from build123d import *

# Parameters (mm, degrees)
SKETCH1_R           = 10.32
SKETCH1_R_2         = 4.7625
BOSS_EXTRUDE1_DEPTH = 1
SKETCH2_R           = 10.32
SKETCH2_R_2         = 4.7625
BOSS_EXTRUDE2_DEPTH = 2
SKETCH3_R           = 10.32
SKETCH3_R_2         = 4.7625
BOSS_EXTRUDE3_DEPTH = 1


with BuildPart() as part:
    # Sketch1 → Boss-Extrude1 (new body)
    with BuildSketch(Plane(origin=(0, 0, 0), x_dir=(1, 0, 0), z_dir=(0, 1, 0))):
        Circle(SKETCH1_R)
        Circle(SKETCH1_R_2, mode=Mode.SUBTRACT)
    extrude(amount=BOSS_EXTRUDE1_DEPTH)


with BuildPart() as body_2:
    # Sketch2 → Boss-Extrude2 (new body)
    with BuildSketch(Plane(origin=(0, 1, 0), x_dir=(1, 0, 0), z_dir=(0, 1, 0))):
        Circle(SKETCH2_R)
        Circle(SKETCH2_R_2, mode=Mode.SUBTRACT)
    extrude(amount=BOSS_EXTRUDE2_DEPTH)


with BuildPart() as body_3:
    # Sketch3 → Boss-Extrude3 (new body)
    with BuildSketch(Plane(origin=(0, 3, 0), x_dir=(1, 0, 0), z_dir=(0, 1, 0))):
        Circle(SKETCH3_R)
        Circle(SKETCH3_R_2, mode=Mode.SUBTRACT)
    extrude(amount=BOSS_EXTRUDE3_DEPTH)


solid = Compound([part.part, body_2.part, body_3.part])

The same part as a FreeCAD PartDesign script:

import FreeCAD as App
import Part
import Sketcher

V = App.Vector
Q = App.Units.Quantity

doc = App.newDocument("Part")
body = doc.addObject("PartDesign::Body", "Body")

# Sketch on XZ plane
sketch1 = body.newObject("Sketcher::SketchObject", "Sketch")
sketch1.AttachmentSupport = (doc.getObject("XZ_Plane"), [""])
sketch1.MapMode = "FlatFace"
sketch1.addGeometry(Part.Circle(V(0, 0, 0), V(0, 0, 1), 10.3), False)
sketch1.addGeometry(Part.Circle(V(0, 0, 0), V(0, 0, 1), 4.8), False)
sketch1.addConstraint(Sketcher.Constraint("Coincident", 0, 3, -1, 1))
sketch1.addConstraint(Sketcher.Constraint("Coincident", 1, 3, -1, 1))
sketch1.addConstraint(Sketcher.Constraint("Diameter", 0, Q("20.64 mm")))
sketch1.addConstraint(Sketcher.Constraint("Diameter", 1, Q("9.525 mm")))
pad1 = body.newObject("PartDesign::Pad", "Pad")
pad1.Profile = sketch1
pad1.Length = 1
pad1.Reversed = True
body2 = doc.addObject("PartDesign::Body", "Body001")

# Sketch on XZ plane
sketch2 = body2.newObject("Sketcher::SketchObject", "Sketch001")
sketch2.AttachmentSupport = (doc.getObject("XZ_Plane001"), [""])
sketch2.MapMode = "FlatFace"
sketch2.AttachmentOffset = App.Placement(V(0, 0, -1), App.Rotation())
sketch2.addGeometry(Part.Circle(V(0, 0, 0), V(0, 0, 1), 10.3), False)
sketch2.addGeometry(Part.Circle(V(0, 0, 0), V(0, 0, 1), 4.8), False)
sketch2.addConstraint(Sketcher.Constraint("Coincident", 0, 3, -1, 1))
sketch2.addConstraint(Sketcher.Constraint("Coincident", 1, 3, -1, 1))
sketch2.addConstraint(Sketcher.Constraint("Diameter", 0, Q("20.64 mm")))
sketch2.addConstraint(Sketcher.Constraint("Diameter", 1, Q("9.525 mm")))
pad2 = body2.newObject("PartDesign::Pad", "Pad001")
pad2.Profile = sketch2
pad2.Length = 2
pad2.Reversed = True
body3 = doc.addObject("PartDesign::Body", "Body002")

# Sketch on XZ plane
sketch3 = body3.newObject("Sketcher::SketchObject", "Sketch002")
sketch3.AttachmentSupport = (doc.getObject("XZ_Plane002"), [""])
sketch3.MapMode = "FlatFace"
sketch3.AttachmentOffset = App.Placement(V(0, 0, -3), App.Rotation())
sketch3.addGeometry(Part.Circle(V(0, 0, 0), V(0, 0, 1), 10.3), False)
sketch3.addGeometry(Part.Circle(V(0, 0, 0), V(0, 0, 1), 4.8), False)
sketch3.addConstraint(Sketcher.Constraint("Coincident", 0, 3, -1, 1))
sketch3.addConstraint(Sketcher.Constraint("Coincident", 1, 3, -1, 1))
sketch3.addConstraint(Sketcher.Constraint("Diameter", 0, Q("20.64 mm")))
sketch3.addConstraint(Sketcher.Constraint("Diameter", 1, Q("9.525 mm")))
pad3 = body3.newObject("PartDesign::Pad", "Pad002")
pad3.Profile = sketch3
pad3.Length = 1
pad3.Reversed = True

doc.recompute()
